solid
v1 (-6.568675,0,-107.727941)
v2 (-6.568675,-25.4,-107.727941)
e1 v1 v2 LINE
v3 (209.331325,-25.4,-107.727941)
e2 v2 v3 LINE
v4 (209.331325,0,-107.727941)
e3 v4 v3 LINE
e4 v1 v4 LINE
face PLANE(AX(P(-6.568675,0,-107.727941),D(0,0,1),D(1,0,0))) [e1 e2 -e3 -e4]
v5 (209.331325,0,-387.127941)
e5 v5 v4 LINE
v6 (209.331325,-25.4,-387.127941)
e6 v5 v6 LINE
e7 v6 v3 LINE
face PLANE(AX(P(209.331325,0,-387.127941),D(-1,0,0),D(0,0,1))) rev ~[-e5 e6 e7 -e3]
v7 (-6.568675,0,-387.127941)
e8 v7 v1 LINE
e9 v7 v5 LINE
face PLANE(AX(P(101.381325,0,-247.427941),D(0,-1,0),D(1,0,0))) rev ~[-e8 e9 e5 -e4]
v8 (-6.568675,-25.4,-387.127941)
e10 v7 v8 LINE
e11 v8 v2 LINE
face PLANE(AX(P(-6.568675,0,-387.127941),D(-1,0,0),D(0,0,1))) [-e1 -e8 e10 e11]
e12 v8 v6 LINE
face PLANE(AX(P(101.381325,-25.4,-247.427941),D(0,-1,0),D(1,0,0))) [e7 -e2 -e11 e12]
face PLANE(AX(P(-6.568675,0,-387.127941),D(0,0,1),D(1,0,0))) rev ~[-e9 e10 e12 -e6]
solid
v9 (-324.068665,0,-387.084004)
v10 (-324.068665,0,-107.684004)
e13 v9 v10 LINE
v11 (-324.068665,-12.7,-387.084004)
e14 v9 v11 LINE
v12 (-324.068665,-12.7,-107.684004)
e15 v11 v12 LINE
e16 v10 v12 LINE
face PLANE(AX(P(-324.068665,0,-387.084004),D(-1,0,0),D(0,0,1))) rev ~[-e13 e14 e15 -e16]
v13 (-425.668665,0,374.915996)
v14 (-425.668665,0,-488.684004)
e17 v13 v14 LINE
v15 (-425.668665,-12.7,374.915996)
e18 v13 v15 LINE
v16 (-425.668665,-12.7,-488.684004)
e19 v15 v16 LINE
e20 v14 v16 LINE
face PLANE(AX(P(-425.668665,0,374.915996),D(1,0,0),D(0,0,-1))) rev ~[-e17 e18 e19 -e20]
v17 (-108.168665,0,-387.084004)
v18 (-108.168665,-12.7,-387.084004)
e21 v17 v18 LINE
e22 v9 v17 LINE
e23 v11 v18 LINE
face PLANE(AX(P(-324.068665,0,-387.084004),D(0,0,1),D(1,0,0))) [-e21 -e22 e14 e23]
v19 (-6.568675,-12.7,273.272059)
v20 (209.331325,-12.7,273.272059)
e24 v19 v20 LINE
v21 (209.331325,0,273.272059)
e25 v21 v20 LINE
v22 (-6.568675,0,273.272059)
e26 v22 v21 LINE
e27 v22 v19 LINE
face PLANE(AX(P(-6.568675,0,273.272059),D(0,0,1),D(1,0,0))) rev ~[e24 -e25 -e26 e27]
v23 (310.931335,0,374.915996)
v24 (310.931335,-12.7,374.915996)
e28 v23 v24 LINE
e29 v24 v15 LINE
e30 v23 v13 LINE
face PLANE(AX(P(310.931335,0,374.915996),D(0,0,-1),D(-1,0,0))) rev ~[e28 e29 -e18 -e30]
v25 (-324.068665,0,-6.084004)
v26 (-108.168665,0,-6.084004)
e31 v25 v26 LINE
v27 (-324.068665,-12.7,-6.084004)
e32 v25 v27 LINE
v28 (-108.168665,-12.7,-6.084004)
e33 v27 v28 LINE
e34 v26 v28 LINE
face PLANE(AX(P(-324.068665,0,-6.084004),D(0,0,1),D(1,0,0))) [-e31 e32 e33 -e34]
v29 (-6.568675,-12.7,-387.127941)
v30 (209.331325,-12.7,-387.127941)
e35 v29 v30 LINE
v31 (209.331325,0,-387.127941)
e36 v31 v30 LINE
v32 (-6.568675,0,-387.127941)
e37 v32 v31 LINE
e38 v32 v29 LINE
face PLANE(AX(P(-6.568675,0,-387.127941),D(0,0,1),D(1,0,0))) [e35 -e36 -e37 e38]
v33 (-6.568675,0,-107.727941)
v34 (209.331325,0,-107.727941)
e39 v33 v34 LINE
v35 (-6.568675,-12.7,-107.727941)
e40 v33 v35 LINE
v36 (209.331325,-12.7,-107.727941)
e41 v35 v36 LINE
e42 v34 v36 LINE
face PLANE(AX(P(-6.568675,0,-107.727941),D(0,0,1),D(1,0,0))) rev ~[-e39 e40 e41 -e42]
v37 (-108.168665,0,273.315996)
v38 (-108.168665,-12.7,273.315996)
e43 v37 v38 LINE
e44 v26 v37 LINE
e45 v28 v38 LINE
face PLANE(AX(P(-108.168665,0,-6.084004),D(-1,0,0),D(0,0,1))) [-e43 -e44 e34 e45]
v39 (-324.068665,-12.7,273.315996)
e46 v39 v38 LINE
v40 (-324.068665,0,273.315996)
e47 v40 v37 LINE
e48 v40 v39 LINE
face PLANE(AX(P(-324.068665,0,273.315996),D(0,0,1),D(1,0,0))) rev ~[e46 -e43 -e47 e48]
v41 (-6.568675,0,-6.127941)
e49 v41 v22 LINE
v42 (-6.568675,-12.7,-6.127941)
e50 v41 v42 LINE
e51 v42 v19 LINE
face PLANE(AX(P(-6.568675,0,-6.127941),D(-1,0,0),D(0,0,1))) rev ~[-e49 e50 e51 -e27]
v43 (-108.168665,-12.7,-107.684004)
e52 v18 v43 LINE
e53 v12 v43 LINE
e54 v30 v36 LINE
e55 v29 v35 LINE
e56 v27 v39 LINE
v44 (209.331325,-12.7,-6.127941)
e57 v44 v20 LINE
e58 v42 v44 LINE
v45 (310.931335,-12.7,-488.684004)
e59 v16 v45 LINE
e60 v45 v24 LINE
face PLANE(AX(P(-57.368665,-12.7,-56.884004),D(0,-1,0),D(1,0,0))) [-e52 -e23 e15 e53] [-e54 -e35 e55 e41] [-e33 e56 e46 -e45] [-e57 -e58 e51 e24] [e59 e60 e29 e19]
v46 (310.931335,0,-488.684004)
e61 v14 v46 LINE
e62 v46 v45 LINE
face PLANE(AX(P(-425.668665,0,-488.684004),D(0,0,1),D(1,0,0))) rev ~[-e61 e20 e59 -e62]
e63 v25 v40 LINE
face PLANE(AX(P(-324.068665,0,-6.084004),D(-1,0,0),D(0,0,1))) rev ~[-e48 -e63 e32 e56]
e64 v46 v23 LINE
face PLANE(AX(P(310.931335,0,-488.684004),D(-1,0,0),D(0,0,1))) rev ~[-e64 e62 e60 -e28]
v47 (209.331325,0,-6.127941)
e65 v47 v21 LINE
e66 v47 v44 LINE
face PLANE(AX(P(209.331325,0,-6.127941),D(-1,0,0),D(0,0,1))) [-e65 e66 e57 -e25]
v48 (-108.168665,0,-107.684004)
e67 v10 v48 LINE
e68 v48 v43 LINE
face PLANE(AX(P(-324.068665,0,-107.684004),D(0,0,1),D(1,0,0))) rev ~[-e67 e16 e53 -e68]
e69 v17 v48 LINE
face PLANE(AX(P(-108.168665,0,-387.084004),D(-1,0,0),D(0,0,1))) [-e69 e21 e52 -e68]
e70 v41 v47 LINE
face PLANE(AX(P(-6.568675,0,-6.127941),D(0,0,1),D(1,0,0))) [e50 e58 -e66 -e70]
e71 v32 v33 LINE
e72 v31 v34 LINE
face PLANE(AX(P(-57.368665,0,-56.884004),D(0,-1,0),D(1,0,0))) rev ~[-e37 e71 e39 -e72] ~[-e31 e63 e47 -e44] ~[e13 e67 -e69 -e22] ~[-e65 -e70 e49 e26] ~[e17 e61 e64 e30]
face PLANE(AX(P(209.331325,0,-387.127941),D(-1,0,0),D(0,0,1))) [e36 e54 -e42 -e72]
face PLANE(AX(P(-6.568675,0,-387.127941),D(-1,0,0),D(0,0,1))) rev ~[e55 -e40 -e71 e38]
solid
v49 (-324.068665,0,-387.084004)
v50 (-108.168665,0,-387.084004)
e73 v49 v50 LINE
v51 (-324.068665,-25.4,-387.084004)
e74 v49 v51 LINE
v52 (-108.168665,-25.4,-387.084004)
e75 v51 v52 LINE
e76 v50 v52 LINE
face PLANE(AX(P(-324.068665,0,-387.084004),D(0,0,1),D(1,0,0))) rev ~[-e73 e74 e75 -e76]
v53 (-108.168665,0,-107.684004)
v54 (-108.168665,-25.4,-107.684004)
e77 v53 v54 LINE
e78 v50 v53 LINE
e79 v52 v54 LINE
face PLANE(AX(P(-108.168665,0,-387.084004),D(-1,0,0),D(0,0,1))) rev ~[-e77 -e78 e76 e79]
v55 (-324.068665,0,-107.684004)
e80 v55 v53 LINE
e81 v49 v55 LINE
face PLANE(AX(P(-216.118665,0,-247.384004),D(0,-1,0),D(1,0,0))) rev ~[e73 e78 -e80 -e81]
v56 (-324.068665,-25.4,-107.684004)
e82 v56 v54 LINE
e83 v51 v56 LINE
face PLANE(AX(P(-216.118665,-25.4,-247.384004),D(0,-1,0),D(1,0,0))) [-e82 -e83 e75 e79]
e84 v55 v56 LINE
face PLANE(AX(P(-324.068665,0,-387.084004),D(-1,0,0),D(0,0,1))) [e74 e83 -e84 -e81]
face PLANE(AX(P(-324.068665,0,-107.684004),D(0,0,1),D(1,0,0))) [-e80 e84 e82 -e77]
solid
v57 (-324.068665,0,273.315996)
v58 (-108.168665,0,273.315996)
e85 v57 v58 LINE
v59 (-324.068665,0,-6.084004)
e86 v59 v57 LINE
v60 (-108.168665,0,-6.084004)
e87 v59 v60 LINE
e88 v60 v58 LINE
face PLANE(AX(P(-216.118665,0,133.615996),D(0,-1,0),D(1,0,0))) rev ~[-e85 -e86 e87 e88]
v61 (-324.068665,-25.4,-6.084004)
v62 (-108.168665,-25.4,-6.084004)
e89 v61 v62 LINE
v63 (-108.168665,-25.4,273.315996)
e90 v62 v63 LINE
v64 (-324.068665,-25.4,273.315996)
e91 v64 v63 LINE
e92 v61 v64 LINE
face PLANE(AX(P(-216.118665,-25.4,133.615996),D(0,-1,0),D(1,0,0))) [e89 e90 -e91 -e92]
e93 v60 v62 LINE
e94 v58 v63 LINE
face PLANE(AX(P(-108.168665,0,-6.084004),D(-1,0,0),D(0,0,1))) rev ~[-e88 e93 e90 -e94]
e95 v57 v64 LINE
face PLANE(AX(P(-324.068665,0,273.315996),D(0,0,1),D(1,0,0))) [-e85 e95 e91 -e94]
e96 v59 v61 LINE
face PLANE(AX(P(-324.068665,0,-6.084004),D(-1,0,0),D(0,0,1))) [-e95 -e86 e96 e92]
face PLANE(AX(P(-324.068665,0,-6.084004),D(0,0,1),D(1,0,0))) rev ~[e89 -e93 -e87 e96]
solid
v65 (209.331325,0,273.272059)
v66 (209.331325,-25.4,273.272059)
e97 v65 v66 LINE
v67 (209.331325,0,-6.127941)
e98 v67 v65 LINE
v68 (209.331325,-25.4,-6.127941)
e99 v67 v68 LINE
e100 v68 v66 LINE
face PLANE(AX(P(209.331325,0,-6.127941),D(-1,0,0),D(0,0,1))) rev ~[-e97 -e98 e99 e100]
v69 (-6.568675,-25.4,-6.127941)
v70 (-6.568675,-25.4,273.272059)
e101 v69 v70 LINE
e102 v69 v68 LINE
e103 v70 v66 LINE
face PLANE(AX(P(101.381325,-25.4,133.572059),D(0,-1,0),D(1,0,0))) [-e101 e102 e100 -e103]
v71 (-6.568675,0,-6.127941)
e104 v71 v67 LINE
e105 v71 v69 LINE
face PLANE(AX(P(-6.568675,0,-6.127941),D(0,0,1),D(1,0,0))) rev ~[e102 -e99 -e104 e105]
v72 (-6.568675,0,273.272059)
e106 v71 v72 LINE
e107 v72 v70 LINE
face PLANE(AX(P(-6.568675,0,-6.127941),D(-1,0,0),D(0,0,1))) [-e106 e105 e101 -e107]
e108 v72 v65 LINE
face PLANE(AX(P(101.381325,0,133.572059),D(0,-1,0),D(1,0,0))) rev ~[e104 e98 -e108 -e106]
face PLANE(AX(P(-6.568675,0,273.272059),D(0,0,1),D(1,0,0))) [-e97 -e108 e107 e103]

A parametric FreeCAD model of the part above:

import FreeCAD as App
import Part
import Sketcher
Q = App.Units.Quantity


def add_polygon(sketch, points):
    """Adds a closed chain of lines whose ends are joined by coincident constraints."""
    first, n = sketch.GeometryCount, len(points)
    for a, b in zip(points, points[1:] + points[:1]):
        sketch.addGeometry(Part.LineSegment(App.Vector(*a, 0), App.Vector(*b, 0)), False)
    for i in range(n):
        sketch.addConstraint(Sketcher.Constraint("Coincident", first + i, 2, first + (i + 1) % n, 1))

doc = App.newDocument("Part")
params = doc.addObject("Spreadsheet::Sheet", "Params")
for row, (alias, value) in enumerate([
    ("sketch1_height", "11 in"),
    ("sketch1_width", "8.5 in"),
    ("pad1_length", "1 in"),
    ("sketch2_width", "29 in"),
    ("sketch2_height", "34 in"),
    ("sketch2_height2", "11 in"),
    ("sketch2_width2", "8.5 in"),
    ("pad2_length", "0.5 in"),
], start=1):
    params.set(f"A{row}", alias)
    params.set(f"B{row}", "=" + value)
    params.setAlias(f"B{row}", alias)

body = doc.addObject("PartDesign::Body", "Body")
body.AllowCompound = True

# Sketch on XZ plane
sketch1 = body.newObject("Sketcher::SketchObject", "Sketch")
sketch1.AttachmentSupport = (doc.getObject("XZ_Plane"), [""])
sketch1.MapMode = "FlatFace"
add_polygon(sketch1, [(-7, 273), (-7, -6), (209, -6), (209, 273)])  # lines 0-3
add_polygon(sketch1, [(-324, 273), (-324, -6), (-108, -6), (-108, 273)])  # lines 4-7
add_polygon(sketch1, [(-324, -108), (-324, -387), (-108, -387), (-108, -108)])  # lines 8-11
add_polygon(sketch1, [(-7, -108), (-7, -387), (209, -387), (209, -108)])  # lines 12-15
sketch1.addConstraint([
    Sketcher.Constraint("Vertical", 0),
    Sketcher.Constraint("Horizontal", 1),
    Sketcher.Constraint("Vertical", 2),
    Sketcher.Constraint("Horizontal", 3),
    Sketcher.Constraint("Vertical", 4),
    Sketcher.Constraint("Horizontal", 5),
    Sketcher.Constraint("Vertical", 6),
    Sketcher.Constraint("Horizontal", 7),
    Sketcher.Constraint("Vertical", 8),
    Sketcher.Constraint("Horizontal", 9),
    Sketcher.Constraint("Vertical", 10),
    Sketcher.Constraint("Horizontal", 11),
    Sketcher.Constraint("Vertical", 12),
    Sketcher.Constraint("Horizontal", 13),
    Sketcher.Constraint("Vertical", 14),
    Sketcher.Constraint("Horizontal", 15),
    Sketcher.Constraint("Vertical", 7, 2, 8, 2),
    Sketcher.Constraint("Vertical", 6, 2, 9, 2),
    Sketcher.Constraint("Vertical", 3, 2, 12, 2),
    Sketcher.Constraint("Vertical", 2, 2, 13, 2),
    Sketcher.Constraint("Equal", 3, 5),
    Sketcher.Constraint("Equal", 2, 4),
    Sketcher.Constraint("Equal", 6, 8),
    Sketcher.Constraint("Equal", 10, 12),
    Sketcher.Constraint("DistanceY", 0, 2, 0, 1, Q("11 in")),
    Sketcher.Constraint("DistanceX", 1, 1, 1, 2, Q("8.5 in")),
    Sketcher.Constraint("DistanceY", 8, 2, 4, 2, Q("15 in")),
    Sketcher.Constraint("DistanceY", 12, 2, 0, 2, Q("15 in")),
    Sketcher.Constraint("DistanceY", 0, 2, -1, 1, 6.127941),
    Sketcher.Constraint("DistanceX", 4, 2, 0, 2, 317.49999),
    Sketcher.Constraint("DistanceX", 0, 2, -1, 1, 6.568675),
    Sketcher.Constraint("DistanceY", 4, 2, -1, 1, 6.084004),
])
sketch1.setExpression("Constraints[40]", "Params.sketch1_height")
sketch1.setExpression("Constraints[41]", "Params.sketch1_width")
pad1 = body.newObject("PartDesign::Pad", "Pad")
pad1.Profile = sketch1
pad1.setExpression("Length", "Params.pad1_length")
body2 = doc.addObject("PartDesign::Body", "Body001")

# Sketch on XZ plane
sketch2 = body2.newObject("Sketcher::SketchObject", "Sketch001")
sketch2.AttachmentSupport = (doc.getObject("XZ_Plane001"), [""])
sketch2.MapMode = "FlatFace"
add_polygon(sketch2, [(311, 375), (-426, 375), (-426, -489), (311, -489)])  # lines 0-3
add_polygon(sketch2, [(-108, -387), (-324, -387), (-324, -108), (-108, -108)])  # lines 4-7
add_polygon(sketch2, [(209, -387), (-7, -387), (-7, -108), (209, -108)])  # lines 8-11
add_polygon(sketch2, [(-108, -6), (-324, -6), (-324, 273), (-108, 273)])  # lines 12-15
add_polygon(sketch2, [(209, -6), (-7, -6), (-7, 273), (209, 273)])  # lines 16-19
sketch2.addConstraint([
    Sketcher.Constraint("Horizontal", 0),
    Sketcher.Constraint("Vertical", 1),
    Sketcher.Constraint("Horizontal", 2),
    Sketcher.Constraint("Vertical", 3),
    Sketcher.Constraint("Horizontal", 4),
    Sketcher.Constraint("Vertical", 5),
    Sketcher.Constraint("Horizontal", 6),
    Sketcher.Constraint("Vertical", 7),
    Sketcher.Constraint("Horizontal", 8),
    Sketcher.Constraint("Vertical", 9),
    Sketcher.Constraint("Horizontal", 10),
    Sketcher.Constraint("Vertical", 11),
    Sketcher.Constraint("Horizontal", 12),
    Sketcher.Constraint("Vertical", 13),
    Sketcher.Constraint("Horizontal", 14),
    Sketcher.Constraint("Vertical", 15),
    Sketcher.Constraint("Horizontal", 16),
    Sketcher.Constraint("Vertical", 17),
    Sketcher.Constraint("Horizontal", 18),
    Sketcher.Constraint("Vertical", 19),
    Sketcher.Constraint("Vertical", 5, 2, 12, 2),
    Sketcher.Constraint("Vertical", 7, 2, 14, 2),
    Sketcher.Constraint("Vertical", 9, 2, 16, 2),
    Sketcher.Constraint("Vertical", 11, 2, 18, 2),
    Sketcher.Constraint("Equal", 6, 8),
    Sketcher.Constraint("Equal", 7, 9),
    Sketcher.Constraint("Equal", 11, 13),
    Sketcher.Constraint("Equal", 15, 17),
    Sketcher.Constraint("DistanceX", 0, 2, 0, 1, Q("29 in")),
    Sketcher.Constraint("DistanceY", 1, 2, 1, 1, Q("34 in")),
    Sketcher.Constraint("DistanceY", 5, 1, 5, 2, Q("11 in")),
    Sketcher.Constraint("DistanceX", 4, 2, 4, 1, Q("8.5 in")),
    Sketcher.Constraint("DistanceX", 1, 2, 4, 2, Q("4 in")),
    Sketcher.Constraint("DistanceY", 1, 2, 4, 2, Q("4 in")),
    Sketcher.Constraint("DistanceY", 5, 2, 12, 2, Q("4 in")),
    Sketcher.Constraint("DistanceY", 9, 2, 16, 2, Q("4 in")),
    Sketcher.Constraint("DistanceY", 8, 2, -1, 1, 387.127941),
    Sketcher.Constraint("DistanceX", 7, 2, 8, 2, 101.59999),
    Sketcher.Constraint("DistanceX", 0, 2, -1, 1, 425.668665),
    Sketcher.Constraint("DistanceY", -1, 1, 0, 2, 374.915996),
])
sketch2.setExpression("Constraints[48]", "Params.sketch2_width")
sketch2.setExpression("Constraints[49]", "Params.sketch2_height")
sketch2.setExpression("Constraints[50]", "Params.sketch2_height2")
sketch2.setExpression("Constraints[51]", "Params.sketch2_width2")
pad2 = body2.newObject("PartDesign::Pad", "Pad001")
pad2.Profile = sketch2
pad2.setExpression("Length", "Params.pad2_length")

doc.recompute()
